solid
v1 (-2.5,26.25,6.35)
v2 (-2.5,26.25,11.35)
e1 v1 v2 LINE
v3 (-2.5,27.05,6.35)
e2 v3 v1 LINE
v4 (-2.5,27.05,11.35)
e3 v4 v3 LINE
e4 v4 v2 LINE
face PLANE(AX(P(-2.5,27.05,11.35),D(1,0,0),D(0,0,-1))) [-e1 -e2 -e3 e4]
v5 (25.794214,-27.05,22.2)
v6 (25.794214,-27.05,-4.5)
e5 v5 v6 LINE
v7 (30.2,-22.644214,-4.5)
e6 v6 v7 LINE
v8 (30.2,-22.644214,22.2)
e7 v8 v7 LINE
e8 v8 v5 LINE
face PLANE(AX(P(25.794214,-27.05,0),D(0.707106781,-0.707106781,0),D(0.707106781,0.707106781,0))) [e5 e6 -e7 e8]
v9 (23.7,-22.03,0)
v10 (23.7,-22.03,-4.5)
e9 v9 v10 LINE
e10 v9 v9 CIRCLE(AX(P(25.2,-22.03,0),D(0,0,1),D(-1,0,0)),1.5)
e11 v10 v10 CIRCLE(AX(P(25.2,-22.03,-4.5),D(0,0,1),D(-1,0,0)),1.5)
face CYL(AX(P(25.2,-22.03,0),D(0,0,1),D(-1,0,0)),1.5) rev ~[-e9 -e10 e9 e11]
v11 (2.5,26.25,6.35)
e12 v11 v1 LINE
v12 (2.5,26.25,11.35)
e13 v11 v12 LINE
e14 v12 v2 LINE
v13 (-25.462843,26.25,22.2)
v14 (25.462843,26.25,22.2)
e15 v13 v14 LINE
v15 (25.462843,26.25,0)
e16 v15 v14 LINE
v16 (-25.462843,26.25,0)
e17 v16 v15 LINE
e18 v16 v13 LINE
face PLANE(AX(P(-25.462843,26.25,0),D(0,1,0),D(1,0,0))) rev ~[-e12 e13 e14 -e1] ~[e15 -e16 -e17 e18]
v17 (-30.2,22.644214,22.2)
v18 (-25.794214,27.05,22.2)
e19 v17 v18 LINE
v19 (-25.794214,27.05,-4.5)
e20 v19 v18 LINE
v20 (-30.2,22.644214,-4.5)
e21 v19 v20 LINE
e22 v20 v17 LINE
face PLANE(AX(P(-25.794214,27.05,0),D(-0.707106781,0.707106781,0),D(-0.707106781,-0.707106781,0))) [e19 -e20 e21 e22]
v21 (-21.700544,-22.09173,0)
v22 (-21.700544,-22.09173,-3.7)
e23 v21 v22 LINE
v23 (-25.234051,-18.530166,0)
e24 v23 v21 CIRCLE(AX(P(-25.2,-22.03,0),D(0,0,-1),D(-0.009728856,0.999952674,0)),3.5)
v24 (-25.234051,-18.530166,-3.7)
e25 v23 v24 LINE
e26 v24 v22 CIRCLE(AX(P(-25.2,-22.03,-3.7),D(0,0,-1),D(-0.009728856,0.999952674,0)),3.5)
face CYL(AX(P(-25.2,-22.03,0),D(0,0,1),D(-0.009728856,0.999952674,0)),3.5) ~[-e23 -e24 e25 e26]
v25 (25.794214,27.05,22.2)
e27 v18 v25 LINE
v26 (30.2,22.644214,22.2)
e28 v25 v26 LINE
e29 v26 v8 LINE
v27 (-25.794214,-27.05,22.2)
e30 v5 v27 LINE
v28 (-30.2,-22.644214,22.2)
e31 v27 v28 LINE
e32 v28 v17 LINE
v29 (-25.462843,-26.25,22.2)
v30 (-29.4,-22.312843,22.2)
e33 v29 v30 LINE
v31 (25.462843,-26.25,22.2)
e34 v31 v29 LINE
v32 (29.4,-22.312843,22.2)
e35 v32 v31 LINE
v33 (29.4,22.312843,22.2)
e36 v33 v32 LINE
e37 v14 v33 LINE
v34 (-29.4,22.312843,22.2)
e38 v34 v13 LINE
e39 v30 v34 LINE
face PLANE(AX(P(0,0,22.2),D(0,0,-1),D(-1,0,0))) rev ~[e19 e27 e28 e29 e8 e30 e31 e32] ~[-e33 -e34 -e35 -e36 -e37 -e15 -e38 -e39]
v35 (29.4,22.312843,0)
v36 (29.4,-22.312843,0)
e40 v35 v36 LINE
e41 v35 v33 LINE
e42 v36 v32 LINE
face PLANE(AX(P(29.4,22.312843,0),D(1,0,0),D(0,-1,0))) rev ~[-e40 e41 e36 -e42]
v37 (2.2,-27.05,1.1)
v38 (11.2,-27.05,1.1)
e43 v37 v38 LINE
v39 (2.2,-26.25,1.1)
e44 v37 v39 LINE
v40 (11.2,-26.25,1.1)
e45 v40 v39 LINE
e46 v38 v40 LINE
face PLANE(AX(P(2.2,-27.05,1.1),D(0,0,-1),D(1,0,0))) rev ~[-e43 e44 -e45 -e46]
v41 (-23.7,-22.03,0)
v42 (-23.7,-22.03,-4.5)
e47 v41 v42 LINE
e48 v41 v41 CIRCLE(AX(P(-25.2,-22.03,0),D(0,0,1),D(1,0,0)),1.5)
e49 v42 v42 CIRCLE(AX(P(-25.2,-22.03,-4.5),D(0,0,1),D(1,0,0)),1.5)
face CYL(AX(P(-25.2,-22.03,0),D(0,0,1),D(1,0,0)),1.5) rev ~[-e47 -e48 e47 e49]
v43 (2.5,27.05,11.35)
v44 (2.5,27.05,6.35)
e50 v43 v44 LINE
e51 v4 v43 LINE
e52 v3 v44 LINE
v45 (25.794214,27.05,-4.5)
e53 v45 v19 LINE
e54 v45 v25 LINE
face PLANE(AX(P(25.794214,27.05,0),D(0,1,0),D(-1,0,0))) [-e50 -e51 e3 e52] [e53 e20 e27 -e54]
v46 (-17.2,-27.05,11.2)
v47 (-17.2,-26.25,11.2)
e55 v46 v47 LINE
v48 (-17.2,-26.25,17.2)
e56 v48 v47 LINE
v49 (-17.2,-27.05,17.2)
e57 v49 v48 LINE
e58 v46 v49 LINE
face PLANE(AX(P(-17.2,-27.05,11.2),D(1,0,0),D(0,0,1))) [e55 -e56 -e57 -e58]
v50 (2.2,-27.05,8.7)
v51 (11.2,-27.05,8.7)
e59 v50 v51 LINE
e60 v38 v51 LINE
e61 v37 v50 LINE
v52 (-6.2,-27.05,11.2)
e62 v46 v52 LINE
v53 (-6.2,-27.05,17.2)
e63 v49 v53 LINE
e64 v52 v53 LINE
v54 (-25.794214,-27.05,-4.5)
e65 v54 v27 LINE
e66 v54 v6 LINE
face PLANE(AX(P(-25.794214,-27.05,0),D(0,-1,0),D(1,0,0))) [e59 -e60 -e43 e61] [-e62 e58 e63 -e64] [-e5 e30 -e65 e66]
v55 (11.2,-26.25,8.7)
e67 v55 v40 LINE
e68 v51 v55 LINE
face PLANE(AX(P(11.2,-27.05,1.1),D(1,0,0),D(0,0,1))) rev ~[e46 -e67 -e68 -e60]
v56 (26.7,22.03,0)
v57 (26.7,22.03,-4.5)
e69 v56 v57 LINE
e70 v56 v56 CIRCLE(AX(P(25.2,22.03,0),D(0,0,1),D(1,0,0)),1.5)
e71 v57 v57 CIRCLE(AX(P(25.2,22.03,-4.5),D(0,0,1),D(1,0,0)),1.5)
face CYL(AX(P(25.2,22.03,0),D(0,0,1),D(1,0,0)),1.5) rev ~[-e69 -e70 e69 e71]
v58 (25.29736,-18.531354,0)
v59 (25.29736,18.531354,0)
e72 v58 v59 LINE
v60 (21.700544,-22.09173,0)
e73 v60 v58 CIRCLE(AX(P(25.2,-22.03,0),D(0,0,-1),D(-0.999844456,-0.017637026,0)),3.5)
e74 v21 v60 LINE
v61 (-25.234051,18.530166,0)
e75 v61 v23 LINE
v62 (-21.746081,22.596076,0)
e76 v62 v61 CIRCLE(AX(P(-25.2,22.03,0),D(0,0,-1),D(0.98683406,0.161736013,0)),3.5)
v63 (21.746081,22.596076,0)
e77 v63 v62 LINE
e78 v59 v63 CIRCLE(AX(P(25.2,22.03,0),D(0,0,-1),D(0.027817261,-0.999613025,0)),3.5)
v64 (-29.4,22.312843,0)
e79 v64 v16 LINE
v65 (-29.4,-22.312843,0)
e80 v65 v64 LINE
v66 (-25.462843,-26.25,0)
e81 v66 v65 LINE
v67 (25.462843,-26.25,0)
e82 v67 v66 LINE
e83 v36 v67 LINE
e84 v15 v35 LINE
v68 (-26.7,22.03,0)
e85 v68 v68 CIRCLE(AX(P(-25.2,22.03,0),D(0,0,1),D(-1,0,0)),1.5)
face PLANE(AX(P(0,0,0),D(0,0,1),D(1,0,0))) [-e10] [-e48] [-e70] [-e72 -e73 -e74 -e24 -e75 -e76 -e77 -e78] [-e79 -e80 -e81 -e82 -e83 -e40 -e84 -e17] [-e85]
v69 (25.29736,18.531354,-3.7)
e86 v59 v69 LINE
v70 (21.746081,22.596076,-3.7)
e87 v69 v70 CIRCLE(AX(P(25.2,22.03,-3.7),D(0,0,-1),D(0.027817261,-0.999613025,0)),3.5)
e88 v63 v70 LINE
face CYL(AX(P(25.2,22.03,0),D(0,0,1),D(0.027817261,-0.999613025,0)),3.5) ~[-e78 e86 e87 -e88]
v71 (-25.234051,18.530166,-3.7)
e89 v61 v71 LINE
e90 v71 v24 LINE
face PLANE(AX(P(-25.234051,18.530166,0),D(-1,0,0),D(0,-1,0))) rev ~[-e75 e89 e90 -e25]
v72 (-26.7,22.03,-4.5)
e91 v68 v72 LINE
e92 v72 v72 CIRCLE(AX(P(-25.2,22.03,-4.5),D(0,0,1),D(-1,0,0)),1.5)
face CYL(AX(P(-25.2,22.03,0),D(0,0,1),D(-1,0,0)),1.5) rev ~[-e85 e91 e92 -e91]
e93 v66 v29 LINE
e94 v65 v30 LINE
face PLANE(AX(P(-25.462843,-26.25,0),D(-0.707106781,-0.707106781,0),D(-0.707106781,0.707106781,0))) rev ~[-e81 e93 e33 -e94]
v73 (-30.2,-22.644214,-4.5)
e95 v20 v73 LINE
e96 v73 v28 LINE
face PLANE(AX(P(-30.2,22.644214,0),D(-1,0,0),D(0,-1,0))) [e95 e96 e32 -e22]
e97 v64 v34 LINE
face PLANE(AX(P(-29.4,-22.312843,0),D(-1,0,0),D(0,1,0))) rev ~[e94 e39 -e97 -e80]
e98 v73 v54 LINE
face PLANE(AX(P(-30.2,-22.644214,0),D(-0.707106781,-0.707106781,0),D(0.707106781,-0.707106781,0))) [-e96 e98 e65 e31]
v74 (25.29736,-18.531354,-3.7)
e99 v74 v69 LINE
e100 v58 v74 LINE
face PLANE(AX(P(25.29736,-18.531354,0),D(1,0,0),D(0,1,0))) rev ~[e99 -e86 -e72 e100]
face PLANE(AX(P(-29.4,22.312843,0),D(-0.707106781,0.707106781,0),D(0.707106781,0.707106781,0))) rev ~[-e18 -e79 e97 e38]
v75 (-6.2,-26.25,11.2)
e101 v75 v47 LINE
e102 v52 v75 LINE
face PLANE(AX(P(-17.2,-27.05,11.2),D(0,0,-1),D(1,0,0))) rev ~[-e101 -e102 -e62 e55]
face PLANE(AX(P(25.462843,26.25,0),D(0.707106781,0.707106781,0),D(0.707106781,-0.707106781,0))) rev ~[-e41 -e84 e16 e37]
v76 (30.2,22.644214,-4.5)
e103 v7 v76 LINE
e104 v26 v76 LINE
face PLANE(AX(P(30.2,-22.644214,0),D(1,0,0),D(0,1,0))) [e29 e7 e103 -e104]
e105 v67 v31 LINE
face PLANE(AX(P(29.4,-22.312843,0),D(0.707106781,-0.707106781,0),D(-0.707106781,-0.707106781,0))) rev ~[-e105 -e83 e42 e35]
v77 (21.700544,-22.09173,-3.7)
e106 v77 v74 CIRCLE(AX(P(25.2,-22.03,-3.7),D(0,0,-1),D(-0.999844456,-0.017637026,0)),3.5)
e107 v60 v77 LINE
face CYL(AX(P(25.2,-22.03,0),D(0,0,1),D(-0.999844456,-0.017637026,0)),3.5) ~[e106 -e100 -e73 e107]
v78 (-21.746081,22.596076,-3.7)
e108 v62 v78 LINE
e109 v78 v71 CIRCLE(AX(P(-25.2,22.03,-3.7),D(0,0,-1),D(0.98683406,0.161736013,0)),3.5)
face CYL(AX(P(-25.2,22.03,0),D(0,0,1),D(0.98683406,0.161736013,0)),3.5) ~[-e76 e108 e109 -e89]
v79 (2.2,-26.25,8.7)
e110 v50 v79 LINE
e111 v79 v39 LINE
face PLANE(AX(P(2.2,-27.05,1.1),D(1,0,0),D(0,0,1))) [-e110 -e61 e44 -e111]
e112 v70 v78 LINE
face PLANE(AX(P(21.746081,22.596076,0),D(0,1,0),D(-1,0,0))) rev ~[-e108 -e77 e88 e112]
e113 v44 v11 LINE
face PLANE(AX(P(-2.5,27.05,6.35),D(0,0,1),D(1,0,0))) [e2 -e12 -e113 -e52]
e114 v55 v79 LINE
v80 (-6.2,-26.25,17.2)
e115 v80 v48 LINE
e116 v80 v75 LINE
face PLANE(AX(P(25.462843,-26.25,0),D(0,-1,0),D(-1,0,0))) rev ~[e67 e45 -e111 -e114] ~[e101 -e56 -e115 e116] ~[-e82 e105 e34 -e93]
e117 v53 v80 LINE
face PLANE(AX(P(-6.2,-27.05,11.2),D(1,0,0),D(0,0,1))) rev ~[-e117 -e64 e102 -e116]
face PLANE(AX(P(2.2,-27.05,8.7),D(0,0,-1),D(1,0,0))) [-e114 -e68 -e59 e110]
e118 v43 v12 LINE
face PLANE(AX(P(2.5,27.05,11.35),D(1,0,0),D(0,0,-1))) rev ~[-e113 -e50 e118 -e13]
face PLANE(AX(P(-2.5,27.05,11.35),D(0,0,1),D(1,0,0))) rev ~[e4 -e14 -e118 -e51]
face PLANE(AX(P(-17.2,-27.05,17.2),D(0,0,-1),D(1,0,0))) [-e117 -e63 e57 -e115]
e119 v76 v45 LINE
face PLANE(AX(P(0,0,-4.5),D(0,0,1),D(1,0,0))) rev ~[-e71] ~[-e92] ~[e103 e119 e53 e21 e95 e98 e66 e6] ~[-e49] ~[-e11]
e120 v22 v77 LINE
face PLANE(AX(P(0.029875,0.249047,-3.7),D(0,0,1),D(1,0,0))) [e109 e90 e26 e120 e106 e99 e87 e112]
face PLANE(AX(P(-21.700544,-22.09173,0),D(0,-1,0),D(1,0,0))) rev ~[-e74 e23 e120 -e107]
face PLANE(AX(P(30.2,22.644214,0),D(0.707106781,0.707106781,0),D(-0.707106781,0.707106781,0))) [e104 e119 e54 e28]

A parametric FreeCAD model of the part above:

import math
import FreeCAD as App
import Part
import Sketcher

V = App.Vector


def add_polygon(sketch, points):
    """Adds a closed chain of lines whose ends are joined by coincident constraints."""
    first, n = sketch.GeometryCount, len(points)
    for a, b in zip(points, points[1:] + points[:1]):
        sketch.addGeometry(Part.LineSegment(App.Vector(*a, 0), App.Vector(*b, 0)), False)
    for i in range(n):
        sketch.addConstraint(Sketcher.Constraint("Coincident", first + i, 2, first + (i + 1) % n, 1))

doc = App.newDocument("Part")
body = doc.addObject("PartDesign::Body", "Body")

sketch1 = body.newObject("Sketcher::SketchObject", "Sketch")
sketch1.AttachmentSupport = (doc.getObject("XY_Plane"), [""])
sketch1.MapMode = "FlatFace"
add_polygon(sketch1, [(26, 27), (-26, 27), (-30, 23), (-30, -23), (-26, -27), (26, -27), (30, -23), (30, 23)])
add_polygon(sketch1, [(-29, 22), (-25, 26), (25, 26), (29, 22), (29, -22), (25, -26), (-25, -26), (-29, -22)])
sketch1.addConstraint(Sketcher.Constraint("Horizontal", 0))
sketch1.addConstraint(Sketcher.Constraint("Vertical", 2))
sketch1.addConstraint(Sketcher.Constraint("Horizontal", 4))
sketch1.addConstraint(Sketcher.Constraint("Vertical", 6))
sketch1.addConstraint(Sketcher.Constraint("Horizontal", 9))
sketch1.addConstraint(Sketcher.Constraint("Vertical", 11))
sketch1.addConstraint(Sketcher.Constraint("Horizontal", 13))
sketch1.addConstraint(Sketcher.Constraint("Vertical", 15))
sketch1.addConstraint(Sketcher.Constraint("Symmetric", 0, 2, 4, 2, -1, 1))
sketch1.addConstraint(Sketcher.Constraint("Symmetric", 1, 2, 5, 2, -1, 1))
sketch1.addConstraint(Sketcher.Constraint("Symmetric", 8, 2, 12, 2, -1, 1))
sketch1.addConstraint(Sketcher.Constraint("Symmetric", 10, 2, 14, 2, -1, 1))
sketch1.addConstraint(Sketcher.Constraint("Perpendicular", 1, 3))
sketch1.addConstraint(Sketcher.Constraint("Perpendicular", 5, 7))
sketch1.addConstraint(Sketcher.Constraint("Perpendicular", 7, 8))
sketch1.addConstraint(Sketcher.Constraint("Perpendicular", 8, 10))
sketch1.addConstraint(Sketcher.Constraint("Perpendicular", 10, 12))
sketch1.addConstraint(Sketcher.Constraint("Perpendicular", 12, 14))
sketch1.addConstraint(Sketcher.Constraint("Horizontal", 2, 2, 5, 2))
sketch1.addConstraint(Sketcher.Constraint("Horizontal", 1, 2, 6, 2))
sketch1.addConstraint(Sketcher.Constraint("Horizontal", 11, 2, 14, 2))
sketch1.addConstraint(Sketcher.Constraint("Vertical", 0, 2, 3, 2))
sketch1.addConstraint(Sketcher.Constraint("DistanceX", 1, 2, -1, 1, 30.2))
sketch1.addConstraint(Sketcher.Constraint("DistanceX", -1, 1, 10, 2, 29.4))
sketch1.addConstraint(Sketcher.Constraint("DistanceY", 3, 2, 0, 2, 54.1))
sketch1.addConstraint(Sketcher.Constraint("DistanceY", 8, 2, 0, 2, 0.8))
sketch1.addConstraint(Sketcher.Constraint("Distance", 8, 5.567981))
sketch1.addConstraint(Sketcher.Constraint("DistanceX", 0, 2, 0, 1, 51.588427))
pad1 = body.newObject("PartDesign::Pad", "Pad")
pad1.Profile = sketch1
pad1.Length = 22.2

sketch2 = body.newObject("Sketcher::SketchObject", "Sketch001")
sketch2.AttachmentSupport = (doc.getObject("XY_Plane"), [""])
sketch2.MapMode = "FlatFace"
add_polygon(sketch2, [(26, 27), (30, 23), (30, -23), (26, -27), (-26, -27), (-30, -23), (-30, 23), (-26, 27)])
sketch2.addConstraint(Sketcher.Constraint("Vertical", 1))
sketch2.addConstraint(Sketcher.Constraint("Horizontal", 3))
sketch2.addConstraint(Sketcher.Constraint("Vertical", 5))
sketch2.addConstraint(Sketcher.Constraint("Horizontal", 7))
sketch2.addConstraint(Sketcher.Constraint("Symmetric", 0, 2, 4, 2, -1, 1))
sketch2.addConstraint(Sketcher.Constraint("Symmetric", 2, 2, 6, 2, -1, 1))
sketch2.addConstraint(Sketcher.Constraint("Perpendicular", 0, 2))
sketch2.addConstraint(Sketcher.Constraint("Perpendicular", 2, 4))
sketch2.addConstraint(Sketcher.Constraint("Perpendicular", 4, 6))
sketch2.addConstraint(Sketcher.Constraint("Horizontal", 1, 2, 4, 2))
sketch2.addConstraint(Sketcher.Constraint("Vertical", 3, 2, 6, 2))
sketch2.addConstraint(Sketcher.Constraint("DistanceX", -1, 1, 0, 2, 30.2))
sketch2.addConstraint(Sketcher.Constraint("DistanceY", 3, 2, 6, 2, 54.1))
sketch2.addConstraint(Sketcher.Constraint("DistanceX", 3, 2, 3, 1, 51.588427))
pad2 = body.newObject("PartDesign::Pad", "Pad001")
pad2.Profile = sketch2
pad2.Length = 4.5
pad2.Reversed = True

sketch3 = body.newObject("Sketcher::SketchObject", "Sketch002")
sketch3.AttachmentSupport = (doc.getObject("XY_Plane"), [""])
sketch3.MapMode = "FlatFace"
sketch3.addGeometry(Part.Circle(V(25.2, 22, 0), V(0, 0, 1), 1.5), False)
sketch3.addGeometry(Part.Circle(V(25.2, -22, 0), V(0, 0, 1), 1.5), False)
sketch3.addGeometry(Part.Circle(V(-25.2, -22, 0), V(0, 0, 1), 1.5), False)
sketch3.addGeometry(Part.Circle(V(-25.2, 22, 0), V(0, 0, 1), 1.5), False)
sketch3.addConstraint(Sketcher.Constraint("Equal", 0, 1))
sketch3.addConstraint(Sketcher.Constraint("Equal", 1, 2))
sketch3.addConstraint(Sketcher.Constraint("Equal", 2, 3))
sketch3.addConstraint(Sketcher.Constraint("Symmetric", 0, 3, 2, 3, -1, 1))
sketch3.addConstraint(Sketcher.Constraint("Symmetric", 1, 3, 3, 3, -1, 1))
sketch3.addConstraint(Sketcher.Constraint("Symmetric", 1, 3, 2, 3, -2))
sketch3.addConstraint(Sketcher.Constraint("Diameter", 0, 3.0))
sketch3.addConstraint(Sketcher.Constraint("DistanceX", -1, 1, 0, 3, 25.2))
sketch3.addConstraint(Sketcher.Constraint("DistanceY", -1, 1, 0, 3, 22.03))
pocket1 = body.newObject("PartDesign::Pocket", "Pocket")
pocket1.Profile = sketch3
pocket1.Type = "ThroughAll"

sketch4 = body.newObject("Sketcher::SketchObject", "Sketch003")
sketch4.AttachmentSupport = (doc.getObject("XY_Plane"), [""])
sketch4.MapMode = "FlatFace"
sketch4.addGeometry(Part.LineSegment(V(-25.234051, 18.530166, 0), V(-25.234051, -18.530166, 0)), False)
sketch4.addGeometry(Part.ArcOfCircle(Part.Circle(V(-25.2, -22.03, 0), V(0, 0, 1), 3.5), math.radians(-1.01058), math.radians(90.557431)), False)
sketch4.addGeometry(Part.LineSegment(V(-21.700544, -22.09173, 0), V(21.700544, -22.09173, 0)), False)
sketch4.addGeometry(Part.ArcOfCircle(Part.Circle(V(25.2, -22.03, 0), V(0, 0, 1), 3.5), math.radians(88.405983), math.radians(181.01058)), False)
sketch4.addGeometry(Part.LineSegment(V(25.29736, -18.531354, 0), V(25.29736, 18.531354, 0)), False)
sketch4.addGeometry(Part.ArcOfCircle(Part.Circle(V(25.2, 22.03, 0), V(0, 0, 1), 3.5), math.radians(170.692325), math.radians(271.594017)), False)
sketch4.addGeometry(Part.LineSegment(V(21.746081, 22.596076, 0), V(-21.746081, 22.596076, 0)), False)
sketch4.addGeometry(Part.ArcOfCircle(Part.Circle(V(-25.2, 22.03, 0), V(0, 0, 1), 3.5), math.radians(-90.557431), math.radians(9.307675)), False)
sketch4.addConstraint(Sketcher.Constraint("Coincident", 0, 2, 1, 2))
sketch4.addConstraint(Sketcher.Constraint("Coincident", 1, 1, 2, 1))
sketch4.addConstraint(Sketcher.Constraint("Coincident", 2, 2, 3, 2))
sketch4.addConstraint(Sketcher.Constraint("Coincident", 3, 1, 4, 1))
sketch4.addConstraint(Sketcher.Constraint("Coincident", 4, 2, 5, 2))
sketch4.addConstraint(Sketcher.Constraint("Coincident", 5, 1, 6, 1))
sketch4.addConstraint(Sketcher.Constraint("Coincident", 6, 2, 7, 2))
sketch4.addConstraint(Sketcher.Constraint("Coincident", 7, 1, 0, 1))
sketch4.addConstraint(Sketcher.Constraint("Vertical", 0))
sketch4.addConstraint(Sketcher.Constraint("Horizontal", 2))
sketch4.addConstraint(Sketcher.Constraint("Vertical", 4))
sketch4.addConstraint(Sketcher.Constraint("Horizontal", 6))
sketch4.addConstraint(Sketcher.Constraint("Equal", 1, 3))
sketch4.addConstraint(Sketcher.Constraint("Equal", 3, 5))
sketch4.addConstraint(Sketcher.Constraint("Equal", 5, 7))
sketch4.addConstraint(Sketcher.Constraint("Symmetric", 1, 3, 5, 3, -1, 1))
sketch4.addConstraint(Sketcher.Constraint("Symmetric", 3, 3, 7, 3, -1, 1))
sketch4.addConstraint(Sketcher.Constraint("Symmetric", 1, 3, 3, 3, -2))
sketch4.addConstraint(Sketcher.Constraint("Radius", 1, 3.5))
sketch4.addConstraint(Sketcher.Constraint("DistanceX", 1, 3, -1, 1, 25.2))
sketch4.addConstraint(Sketcher.Constraint("DistanceY", 1, 3, -1, 1, 22.03))
sketch4.addConstraint(Sketcher.Constraint("DistanceX", 2, 1, 2, 2, 43.401089))
sketch4.addConstraint(Sketcher.Constraint("DistanceX", 6, 2, 6, 1, 43.492162))
sketch4.addConstraint(Sketcher.Constraint("DistanceY", 0, 2, 0, 1, 37.060331))
sketch4.addConstraint(Sketcher.Constraint("DistanceY", 4, 1, 4, 2, 37.062709))
pocket2 = body.newObject("PartDesign::Pocket", "Pocket001")
pocket2.Profile = sketch4
pocket2.Length = 3.7

sketch5 = body.newObject("Sketcher::SketchObject", "Sketch004")
sketch5.AttachmentSupport = (doc.getObject("XZ_Plane"), [""])
sketch5.MapMode = "FlatFace"
sketch5.AttachmentOffset = App.Placement(V(0, 0, 27.05), App.Rotation())
add_polygon(sketch5, [(2, 9), (2, 1), (11, 1), (11, 9)])
sketch5.addConstraint(Sketcher.Constraint("Vertical", 0))
sketch5.addConstraint(Sketcher.Constraint("Horizontal", 1))
sketch5.addConstraint(Sketcher.Constraint("Vertical", 2))
sketch5.addConstraint(Sketcher.Constraint("Horizontal", 3))
sketch5.addConstraint(Sketcher.Constraint("DistanceX", 1, 1, 1, 2, 9.0))
sketch5.addConstraint(Sketcher.Constraint("DistanceY", 0, 2, 0, 1, 7.6))
sketch5.addConstraint(Sketcher.Constraint("DistanceX", -1, 1, 0, 2, 2.2))
sketch5.addConstraint(Sketcher.Constraint("DistanceY", -1, 1, 0, 2, 1.1))
pocket3 = body.newObject("PartDesign::Pocket", "Pocket002")
pocket3.Profile = sketch5
pocket3.Type = "UpToFirst"

sketch6 = body.newObject("Sketcher::SketchObject", "Sketch005")
sketch6.AttachmentSupport = (doc.getObject("XZ_Plane"), [""])
sketch6.MapMode = "FlatFace"
sketch6.AttachmentOffset = App.Placement(V(0, 0, 27.05), App.Rotation())
add_polygon(sketch6, [(-17, 17), (-17, 11), (-6, 11), (-6, 17)])
sketch6.addConstraint(Sketcher.Constraint("Vertical", 0))
sketch6.addConstraint(Sketcher.Constraint("Horizontal", 1))
sketch6.addConstraint(Sketcher.Constraint("Vertical", 2))
sketch6.addConstraint(Sketcher.Constraint("Horizontal", 3))
sketch6.addConstraint(Sketcher.Constraint("DistanceX", 1, 1, 1, 2, 11.0))
sketch6.addConstraint(Sketcher.Constraint("DistanceY", 0, 2, 0, 1, 6.0))
sketch6.addConstraint(Sketcher.Constraint("DistanceX", 0, 2, -1, 1, 17.2))
sketch6.addConstraint(Sketcher.Constraint("DistanceY", -1, 1, 0, 2, 11.2))
pocket4 = body.newObject("PartDesign::Pocket", "Pocket003")
pocket4.Profile = sketch6
pocket4.Type = "UpToFirst"

sketch7 = body.newObject("Sketcher::SketchObject", "Sketch006")
sketch7.AttachmentSupport = (doc.getObject("XZ_Plane"), [""])
sketch7.MapMode = "FlatFace"
sketch7.AttachmentOffset = App.Placement(V(0, 0, -27.05), App.Rotation())
add_polygon(sketch7, [(-2, 6), (-2, 11), (2, 11), (2, 6)])
sketch7.addConstraint(Sketcher.Constraint("Vertical", 0))
sketch7.addConstraint(Sketcher.Constraint("Horizontal", 1))
sketch7.addConstraint(Sketcher.Constraint("Vertical", 2))
sketch7.addConstraint(Sketcher.Constraint("Horizontal", 3))
sketch7.addConstraint(Sketcher.Constraint("Equal", 3, 0))
sketch7.addConstraint(Sketcher.Constraint("DistanceX", 1, 1, 1, 2, 5.0))
sketch7.addConstraint(Sketcher.Constraint("DistanceX", 0, 2, -1, 1, 2.5))
sketch7.addConstraint(Sketcher.Constraint("DistanceY", -1, 1, 0, 2, 11.35))
pocket5 = body.newObject("PartDesign::Pocket", "Pocket004")
pocket5.Profile = sketch7
pocket5.Type = "UpToFirst"
pocket5.Reversed = True

doc.recompute()
